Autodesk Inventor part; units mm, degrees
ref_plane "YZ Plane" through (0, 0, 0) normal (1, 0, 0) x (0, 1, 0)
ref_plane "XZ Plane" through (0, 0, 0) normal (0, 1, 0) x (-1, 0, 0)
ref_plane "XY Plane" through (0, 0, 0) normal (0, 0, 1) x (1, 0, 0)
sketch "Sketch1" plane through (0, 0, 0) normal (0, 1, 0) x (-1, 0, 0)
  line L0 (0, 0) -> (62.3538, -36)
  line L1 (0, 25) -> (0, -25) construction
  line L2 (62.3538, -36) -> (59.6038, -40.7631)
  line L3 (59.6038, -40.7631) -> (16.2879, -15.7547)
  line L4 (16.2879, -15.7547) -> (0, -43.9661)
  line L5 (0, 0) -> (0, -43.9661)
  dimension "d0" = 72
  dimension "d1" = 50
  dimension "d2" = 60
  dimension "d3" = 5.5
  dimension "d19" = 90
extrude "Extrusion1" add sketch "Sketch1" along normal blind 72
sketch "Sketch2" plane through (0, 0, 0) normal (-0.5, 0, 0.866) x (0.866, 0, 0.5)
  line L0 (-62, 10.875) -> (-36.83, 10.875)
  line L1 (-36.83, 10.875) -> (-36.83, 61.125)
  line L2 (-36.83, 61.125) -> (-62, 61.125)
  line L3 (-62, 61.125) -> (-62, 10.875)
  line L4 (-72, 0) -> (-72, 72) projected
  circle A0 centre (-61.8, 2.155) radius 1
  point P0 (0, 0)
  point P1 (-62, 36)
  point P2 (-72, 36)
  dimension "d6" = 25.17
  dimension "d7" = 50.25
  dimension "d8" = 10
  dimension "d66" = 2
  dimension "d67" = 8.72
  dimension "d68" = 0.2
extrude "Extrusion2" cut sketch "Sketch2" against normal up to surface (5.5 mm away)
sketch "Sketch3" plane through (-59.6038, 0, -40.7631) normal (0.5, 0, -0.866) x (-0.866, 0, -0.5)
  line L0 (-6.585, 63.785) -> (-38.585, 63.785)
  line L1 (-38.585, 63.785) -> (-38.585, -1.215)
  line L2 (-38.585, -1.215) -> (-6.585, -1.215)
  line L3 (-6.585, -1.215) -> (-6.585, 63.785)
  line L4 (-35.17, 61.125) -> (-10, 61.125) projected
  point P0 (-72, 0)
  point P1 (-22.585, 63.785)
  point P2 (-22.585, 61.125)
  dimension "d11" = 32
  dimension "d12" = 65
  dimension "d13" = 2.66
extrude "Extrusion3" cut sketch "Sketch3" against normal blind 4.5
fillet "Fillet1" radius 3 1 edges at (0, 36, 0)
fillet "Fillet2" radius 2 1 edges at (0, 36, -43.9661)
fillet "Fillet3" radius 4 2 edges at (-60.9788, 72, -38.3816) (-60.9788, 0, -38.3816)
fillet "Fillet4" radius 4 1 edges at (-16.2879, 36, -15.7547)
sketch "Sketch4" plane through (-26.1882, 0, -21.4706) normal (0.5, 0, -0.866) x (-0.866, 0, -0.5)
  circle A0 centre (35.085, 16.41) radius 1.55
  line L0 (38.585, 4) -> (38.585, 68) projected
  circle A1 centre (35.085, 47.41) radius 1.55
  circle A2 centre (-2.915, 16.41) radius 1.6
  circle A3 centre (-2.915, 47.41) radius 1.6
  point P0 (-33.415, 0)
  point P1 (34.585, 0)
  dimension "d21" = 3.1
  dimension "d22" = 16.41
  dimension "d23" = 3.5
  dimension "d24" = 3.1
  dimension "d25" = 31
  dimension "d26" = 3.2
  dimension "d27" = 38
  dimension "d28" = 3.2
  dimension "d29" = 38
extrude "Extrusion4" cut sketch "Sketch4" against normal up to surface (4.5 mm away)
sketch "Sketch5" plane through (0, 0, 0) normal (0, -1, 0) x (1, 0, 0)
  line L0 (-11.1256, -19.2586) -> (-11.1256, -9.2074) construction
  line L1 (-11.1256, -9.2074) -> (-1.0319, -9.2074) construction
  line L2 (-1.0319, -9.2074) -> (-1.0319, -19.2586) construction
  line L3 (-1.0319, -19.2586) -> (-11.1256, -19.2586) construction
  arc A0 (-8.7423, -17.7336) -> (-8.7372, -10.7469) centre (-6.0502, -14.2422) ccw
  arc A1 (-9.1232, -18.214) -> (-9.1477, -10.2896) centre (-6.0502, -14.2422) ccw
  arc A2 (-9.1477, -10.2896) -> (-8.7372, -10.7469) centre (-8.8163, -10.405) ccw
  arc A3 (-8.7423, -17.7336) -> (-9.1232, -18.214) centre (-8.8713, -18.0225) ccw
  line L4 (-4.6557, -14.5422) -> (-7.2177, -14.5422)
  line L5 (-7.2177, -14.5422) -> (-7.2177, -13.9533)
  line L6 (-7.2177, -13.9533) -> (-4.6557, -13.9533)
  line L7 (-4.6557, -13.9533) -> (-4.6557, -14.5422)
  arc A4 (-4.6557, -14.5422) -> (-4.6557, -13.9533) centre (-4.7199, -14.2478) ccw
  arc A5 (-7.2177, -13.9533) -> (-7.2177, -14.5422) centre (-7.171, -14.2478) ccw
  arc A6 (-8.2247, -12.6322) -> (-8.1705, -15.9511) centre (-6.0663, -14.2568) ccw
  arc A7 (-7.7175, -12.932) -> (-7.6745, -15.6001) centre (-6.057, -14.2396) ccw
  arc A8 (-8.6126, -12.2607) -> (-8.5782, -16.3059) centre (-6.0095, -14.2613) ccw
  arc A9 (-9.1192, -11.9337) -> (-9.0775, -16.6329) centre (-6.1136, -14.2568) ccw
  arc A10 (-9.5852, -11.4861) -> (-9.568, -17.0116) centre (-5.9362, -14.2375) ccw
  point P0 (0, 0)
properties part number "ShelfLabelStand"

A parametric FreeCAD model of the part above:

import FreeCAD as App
import Part
import Sketcher
Q = App.Units.Quantity


def edges_at(feature, points):
    """Names of the edges that pass closest to the given points."""
    edges = feature.Shape.Edges
    near = lambda p: min(range(len(edges)), key=lambda i: edges[i].distToShape(Part.Vertex(*p))[0])
    return sorted({f"Edge{near(p) + 1}" for p in points})

doc = App.newDocument("Part")
body = doc.addObject("PartDesign::Body", "Body")

# Sketch on XZ plane
sketch1 = body.newObject("Sketcher::SketchObject", "Sketch")
sketch1.AttachmentSupport = (doc.getObject("XZ_Plane"), [""])
sketch1.MapMode = "FlatFace"
sketch1.addGeometry(Part.LineSegment(App.Vector(-62.3538, -36, 0), App.Vector(0, 0, 0)), False)
sketch1.addGeometry(Part.LineSegment(App.Vector(0, 0, 0), App.Vector(0, -43.9661, 0)), False)
sketch1.addGeometry(Part.LineSegment(App.Vector(0, -43.9661, 0), App.Vector(-16.2879, -15.7547, 0)), False)
sketch1.addGeometry(Part.LineSegment(App.Vector(-16.2879, -15.7547, 0), App.Vector(-59.6038, -40.7631, 0)), False)
sketch1.addGeometry(Part.LineSegment(App.Vector(-59.6038, -40.7631, 0), App.Vector(-62.3538, -36, 0)), False)
sketch1.addConstraint(Sketcher.Constraint("Coincident", 0, 2, 1, 1))
sketch1.addConstraint(Sketcher.Constraint("Coincident", 1, 2, 2, 1))
sketch1.addConstraint(Sketcher.Constraint("Coincident", 2, 2, 3, 1))
sketch1.addConstraint(Sketcher.Constraint("Coincident", 3, 2, 4, 1))
sketch1.addConstraint(Sketcher.Constraint("Coincident", 4, 2, 0, 1))
sketch1.addConstraint(Sketcher.Constraint("Vertical", 1))
sketch1.addConstraint(Sketcher.Constraint("Coincident", 0, 2, -1, 1))
sketch1.addConstraint(Sketcher.Constraint("Perpendicular", 0, 2))
sketch1.addConstraint(Sketcher.Constraint("Perpendicular", 2, 3))
sketch1.addConstraint(Sketcher.Constraint("Perpendicular", 3, 4))
sketch1.addConstraint(Sketcher.Constraint("Distance", 0, Q("72 mm")))
sketch1.addConstraint(Sketcher.Constraint("Distance", 4, Q("5.5 mm")))
sketch1.addConstraint(Sketcher.Constraint("Angle", 0, Q("30 deg")))
sketch1.addConstraint(Sketcher.Constraint("DistanceY", 1, 2, 1, 1, Q("43.966 mm")))
pad1 = body.newObject("PartDesign::Pad", "Pad")
pad1.Profile = sketch1
pad1.Length = 72
pad1.Reversed = True

# Sketch on an angled plane
sketch2 = body.newObject("Sketcher::SketchObject", "Sketch001")
sketch2.Placement = App.Placement(App.Vector(0, 0, 0), App.Rotation(App.Vector(0.866025404, 0, 0.5), App.Vector(0, 1, 0), App.Vector(-0.5, 0, 0.866025404), "ZXY"))
sketch2.addGeometry(Part.LineSegment(App.Vector(-62, 61.125, 0), App.Vector(-62, 10.875, 0)), False)
sketch2.addGeometry(Part.LineSegment(App.Vector(-62, 10.875, 0), App.Vector(-36.83, 10.875, 0)), False)
sketch2.addGeometry(Part.LineSegment(App.Vector(-36.83, 10.875, 0), App.Vector(-36.83, 61.125, 0)), False)
sketch2.addGeometry(Part.LineSegment(App.Vector(-36.83, 61.125, 0), App.Vector(-62, 61.125, 0)), False)
sketch2.addGeometry(Part.Circle(App.Vector(-61.8, 2.155, 0), App.Vector(0, 0, 1), 1), False)
sketch2.addConstraint(Sketcher.Constraint("Coincident", 0, 2, 1, 1))
sketch2.addConstraint(Sketcher.Constraint("Coincident", 1, 2, 2, 1))
sketch2.addConstraint(Sketcher.Constraint("Coincident", 2, 2, 3, 1))
sketch2.addConstraint(Sketcher.Constraint("Coincident", 3, 2, 0, 1))
sketch2.addConstraint(Sketcher.Constraint("Vertical", 0))
sketch2.addConstraint(Sketcher.Constraint("Horizontal", 1))
sketch2.addConstraint(Sketcher.Constraint("Vertical", 2))
sketch2.addConstraint(Sketcher.Constraint("Horizontal", 3))
sketch2.addConstraint(Sketcher.Constraint("Diameter", 4, Q("2 mm")))
sketch2.addConstraint(Sketcher.Constraint("DistanceX", 1, 1, 1, 2, Q("25.17 mm")))
sketch2.addConstraint(Sketcher.Constraint("DistanceY", 0, 2, 0, 1, Q("50.25 mm")))
sketch2.addConstraint(Sketcher.Constraint("DistanceX", 0, 2, 4, 3, Q("0.2 mm")))
sketch2.addConstraint(Sketcher.Constraint("DistanceY", 4, 3, 0, 2, Q("8.72 mm")))
sketch2.addConstraint(Sketcher.Constraint("DistanceX", 0, 2, -1, 1, Q("62 mm")))
sketch2.addConstraint(Sketcher.Constraint("DistanceY", -1, 1, 4, 3, Q("2.155 mm")))
pocket1 = body.newObject("PartDesign::Pocket", "Pocket")
pocket1.Profile = sketch2
pocket1.Length = 5.5

# Sketch on an angled plane
sketch3 = body.newObject("Sketcher::SketchObject", "Sketch002")
sketch3.Placement = App.Placement(App.Vector(-59.6038, 0, -40.7631), App.Rotation(App.Vector(-0.866025404, 0, -0.5), App.Vector(0, 1, 0), App.Vector(0.5, 0, -0.866025404), "ZXY"))
sketch3.addGeometry(Part.LineSegment(App.Vector(-6.585, -1.215, 0), App.Vector(-6.585, 63.785, 0)), False)
sketch3.addGeometry(Part.LineSegment(App.Vector(-6.585, 63.785, 0), App.Vector(-38.585, 63.785, 0)), False)
sketch3.addGeometry(Part.LineSegment(App.Vector(-38.585, 63.785, 0), App.Vector(-38.585, -1.215, 0)), False)
sketch3.addGeometry(Part.LineSegment(App.Vector(-38.585, -1.215, 0), App.Vector(-6.585, -1.215, 0)), False)
sketch3.addConstraint(Sketcher.Constraint("Coincident", 0, 2, 1, 1))
sketch3.addConstraint(Sketcher.Constraint("Coincident", 1, 2, 2, 1))
sketch3.addConstraint(Sketcher.Constraint("Coincident", 2, 2, 3, 1))
sketch3.addConstraint(Sketcher.Constraint("Coincident", 3, 2, 0, 1))
sketch3.addConstraint(Sketcher.Constraint("Vertical", 0))
sketch3.addConstraint(Sketcher.Constraint("Horizontal", 1))
sketch3.addConstraint(Sketcher.Constraint("Vertical", 2))
sketch3.addConstraint(Sketcher.Constraint("Horizontal", 3))
sketch3.addConstraint(Sketcher.Constraint("DistanceX", 1, 2, 1, 1, Q("32 mm")))
sketch3.addConstraint(Sketcher.Constraint("DistanceY", 0, 1, 0, 2, Q("65 mm")))
sketch3.addConstraint(Sketcher.Constraint("DistanceX", 0, 2, -1, 1, Q("6.585 mm")))
sketch3.addConstraint(Sketcher.Constraint("DistanceY", -1, 1, 0, 2, Q("63.785 mm")))
pocket2 = body.newObject("PartDesign::Pocket", "Pocket001")
pocket2.Profile = sketch3
pocket2.Length = 4.5
doc.recompute()

fillet = body.newObject("PartDesign::Fillet", "Fillet")
fillet.Base = (pocket2, edges_at(pocket2, [(0, 36, 0)]))
fillet.Radius = 3
doc.recompute()

fillet2 = body.newObject("PartDesign::Fillet", "Fillet001")
fillet2.Base = (fillet, edges_at(fillet, [(0, 36, -43.966)]))
fillet2.Radius = 2
doc.recompute()

fillet3 = body.newObject("PartDesign::Fillet", "Fillet002")
fillet3.Base = (fillet2, edges_at(fillet2, [(-60.979, 72, -38.382), (-60.979, 0, -38.382)]))
fillet3.Radius = 4
doc.recompute()

fillet4 = body.newObject("PartDesign::Fillet", "Fillet003")
fillet4.Base = (fillet3, edges_at(fillet3, [(-16.288, 36, -15.755)]))
fillet4.Radius = 4

# Sketch on an angled plane
sketch4 = body.newObject("Sketcher::SketchObject", "Sketch003")
sketch4.Placement = App.Placement(App.Vector(-26.1882, 0, -21.4706), App.Rotation(App.Vector(-0.866025404, 0, -0.5), App.Vector(0, 1, 0), App.Vector(0.5, 0, -0.866025404), "ZXY"))
sketch4.addGeometry(Part.Circle(App.Vector(35.085, 16.41, 0), App.Vector(0, 0, 1), 1.55), False)
sketch4.addGeometry(Part.Circle(App.Vector(35.085, 47.41, 0), App.Vector(0, 0, 1), 1.55), False)
sketch4.addGeometry(Part.Circle(App.Vector(-2.915, 16.41, 0), App.Vector(0, 0, 1), 1.6), False)
sketch4.addGeometry(Part.Circle(App.Vector(-2.915, 47.41, 0), App.Vector(0, 0, 1), 1.6), False)
sketch4.addConstraint(Sketcher.Constraint("Equal", 0, 1))
sketch4.addConstraint(Sketcher.Constraint("Equal", 2, 3))
sketch4.addConstraint(Sketcher.Constraint("Horizontal", 0, 3, 2, 3))
sketch4.addConstraint(Sketcher.Constraint("Horizontal", 1, 3, 3, 3))
sketch4.addConstraint(Sketcher.Constraint("Vertical", 0, 3, 1, 3))
sketch4.addConstraint(Sketcher.Constraint("Vertical", 2, 3, 3, 3))
sketch4.addConstraint(Sketcher.Constraint("Diameter", 0, Q("3.1 mm")))
sketch4.addConstraint(Sketcher.Constraint("Diameter", 2, Q("3.2 mm")))
sketch4.addConstraint(Sketcher.Constraint("DistanceY", 0, 3, 1, 3, Q("31 mm")))
sketch4.addConstraint(Sketcher.Constraint("DistanceX", 2, 3, 0, 3, Q("38 mm")))
sketch4.addConstraint(Sketcher.Constraint("DistanceY", -1, 1, 0, 3, Q("16.41 mm")))
sketch4.addConstraint(Sketcher.Constraint("DistanceX", -1, 1, 0, 3, Q("35.085 mm")))
pocket3 = body.newObject("PartDesign::Pocket", "Pocket002")
pocket3.Profile = sketch4
pocket3.Length = 4.5

doc.recompute()
